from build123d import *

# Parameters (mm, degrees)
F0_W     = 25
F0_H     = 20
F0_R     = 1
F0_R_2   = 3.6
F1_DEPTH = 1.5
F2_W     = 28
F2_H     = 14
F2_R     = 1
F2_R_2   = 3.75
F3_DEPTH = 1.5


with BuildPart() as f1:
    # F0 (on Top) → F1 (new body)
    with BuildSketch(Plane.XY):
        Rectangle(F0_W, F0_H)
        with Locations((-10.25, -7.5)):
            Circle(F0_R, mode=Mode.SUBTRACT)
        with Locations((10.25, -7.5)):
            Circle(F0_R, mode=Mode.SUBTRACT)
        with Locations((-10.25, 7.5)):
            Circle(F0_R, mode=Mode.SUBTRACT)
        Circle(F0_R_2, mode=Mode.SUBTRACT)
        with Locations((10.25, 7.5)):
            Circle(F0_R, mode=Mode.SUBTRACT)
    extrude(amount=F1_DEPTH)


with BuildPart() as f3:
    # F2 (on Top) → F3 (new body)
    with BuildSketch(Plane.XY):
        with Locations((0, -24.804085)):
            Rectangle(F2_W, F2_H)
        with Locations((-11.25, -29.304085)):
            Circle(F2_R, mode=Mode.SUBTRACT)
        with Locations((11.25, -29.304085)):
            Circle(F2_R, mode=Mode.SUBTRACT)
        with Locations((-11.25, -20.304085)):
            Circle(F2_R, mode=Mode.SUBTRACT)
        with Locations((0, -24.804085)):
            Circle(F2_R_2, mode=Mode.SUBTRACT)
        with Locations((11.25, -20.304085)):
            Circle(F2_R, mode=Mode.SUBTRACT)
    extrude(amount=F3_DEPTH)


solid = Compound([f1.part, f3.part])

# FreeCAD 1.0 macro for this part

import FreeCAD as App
import Part
import Sketcher
from FreeCAD import Vector
Q = App.Units.Quantity

doc = App.newDocument("Part")
params = doc.addObject("Spreadsheet::Sheet", "Params")
for row, (alias, value) in enumerate([
    ("sketch1_diameter", "2 mm"),
    ("sketch1_diameter2", "7.2 mm"),
    ("sketch1_width", "25 mm"),
    ("sketch1_height", "20 mm"),
    ("pad1_length", "1.5 mm"),
    ("sketch2_diameter", "2 mm"),
    ("sketch2_diameter2", "7.5 mm"),
    ("sketch2_width", "28 mm"),
    ("sketch2_height", "14 mm"),
    ("pad2_length", "1.5 mm"),
], start=1):
    params.set(f"A{row}", alias)
    params.set(f"B{row}", "=" + value)
    params.setAlias(f"B{row}", alias)

body = doc.addObject("PartDesign::Body", "Body")

# Sketch on XY plane
sketch1 = body.newObject("Sketcher::SketchObject", "Sketch")
sketch1.AttachmentSupport = (doc.getObject("XY_Plane"), [""])
sketch1.MapMode = "FlatFace"
sketch1.addGeometry([
    Part.LineSegment(Vector(-12.5, 10, 0), Vector(-12.5, -10, 0)),  # 0
    Part.LineSegment(Vector(-12.5, -10, 0), Vector(12.5, -10, 0)),  # 1
    Part.LineSegment(Vector(12.5, -10, 0), Vector(12.5, 10, 0)),  # 2
    Part.LineSegment(Vector(12.5, 10, 0), Vector(-12.5, 10, 0)),  # 3
    Part.Circle(Vector(-10.2, -7.5, 0), Vector(0, 0, 1), 1),  # 4
    Part.Circle(Vector(10.2, -7.5, 0), Vector(0, 0, 1), 1),  # 5
    Part.Circle(Vector(-10.2, 7.5, 0), Vector(0, 0, 1), 1),  # 6
    Part.Circle(Vector(0, 0, 0), Vector(0, 0, 1), 3.6),  # 7
    Part.Circle(Vector(10.2, 7.5, 0), Vector(0, 0, 1), 1),  # 8
], False)
sketch1.addConstraint([
    Sketcher.Constraint("Coincident", 0, 2, 1, 1),
    Sketcher.Constraint("Coincident", 1, 2, 2, 1),
    Sketcher.Constraint("Coincident", 2, 2, 3, 1),
    Sketcher.Constraint("Coincident", 3, 2, 0, 1),
    Sketcher.Constraint("Vertical", 0),
    Sketcher.Constraint("Horizontal", 1),
    Sketcher.Constraint("Vertical", 2),
    Sketcher.Constraint("Horizontal", 3),
    Sketcher.Constraint("Coincident", 7, 3, -1, 1),
    Sketcher.Constraint("Equal", 4, 5),
    Sketcher.Constraint("Equal", 5, 6),
    Sketcher.Constraint("Equal", 6, 8),
    Sketcher.Constraint("Symmetric", 5, 3, 6, 3, -1, 1),
    Sketcher.Constraint("Symmetric", 4, 3, 8, 3, -1, 1),
    Sketcher.Constraint("Symmetric", 0, 2, 2, 2, -1, 1),
    Sketcher.Constraint("Symmetric", 4, 3, 5, 3, -2),
    Sketcher.Constraint("Diameter", 4, Q("2 mm")),
    Sketcher.Constraint("Diameter", 7, Q("7.2 mm")),
    Sketcher.Constraint("DistanceX", 1, 1, 1, 2, Q("25 mm")),
    Sketcher.Constraint("DistanceY", 0, 2, 0, 1, Q("20 mm")),
    Sketcher.Constraint("DistanceY", 4, 3, 6, 3, Q("15 mm")),
    Sketcher.Constraint("DistanceX", 4, 3, 5, 3, Q("20.5 mm")),
])
sketch1.setExpression("Constraints[16]", "Params.sketch1_diameter")
sketch1.setExpression("Constraints[17]", "Params.sketch1_diameter2")
sketch1.setExpression("Constraints[18]", "Params.sketch1_width")
sketch1.setExpression("Constraints[19]", "Params.sketch1_height")
pad1 = body.newObject("PartDesign::Pad", "Pad")
pad1.Profile = sketch1
pad1.setExpression("Length", "Params.pad1_length")
body2 = doc.addObject("PartDesign::Body", "Body001")

# Sketch on XY plane
sketch2 = body2.newObject("Sketcher::SketchObject", "Sketch001")
sketch2.AttachmentSupport = (doc.getObject("XY_Plane001"), [""])
sketch2.MapMode = "FlatFace"
sketch2.addGeometry([
    Part.LineSegment(Vector(-14, -17.8, 0), Vector(-14, -31.8, 0)),  # 0
    Part.LineSegment(Vector(-14, -31.8, 0), Vector(14, -31.8, 0)),  # 1
    Part.LineSegment(Vector(14, -31.8, 0), Vector(14, -17.8, 0)),  # 2
    Part.LineSegment(Vector(14, -17.8, 0), Vector(-14, -17.8, 0)),  # 3
    Part.Circle(Vector(-11.2, -29.3, 0), Vector(0, 0, 1), 1),  # 4
    Part.Circle(Vector(11.2, -29.3, 0), Vector(0, 0, 1), 1),  # 5
    Part.Circle(Vector(0, -24.8, 0), Vector(0, 0, 1), 3.8),  # 6
    Part.Circle(Vector(-11.2, -20.3, 0), Vector(0, 0, 1), 1),  # 7
    Part.Circle(Vector(11.2, -20.3, 0), Vector(0, 0, 1), 1),  # 8
], False)
sketch2.addConstraint([
    Sketcher.Constraint("Coincident", 0, 2, 1, 1),
    Sketcher.Constraint("Coincident", 1, 2, 2, 1),
    Sketcher.Constraint("Coincident", 2, 2, 3, 1),
    Sketcher.Constraint("Coincident", 3, 2, 0, 1),
    Sketcher.Constraint("Vertical", 0),
    Sketcher.Constraint("Horizontal", 1),
    Sketcher.Constraint("Vertical", 2),
    Sketcher.Constraint("Horizontal", 3),
    Sketcher.Constraint("Equal", 4, 5),
    Sketcher.Constraint("Equal", 5, 7),
    Sketcher.Constraint("Equal", 7, 8),
    Sketcher.Constraint("Symmetric", 4, 3, 5, 3, -2),
    Sketcher.Constraint("Symmetric", 7, 3, 8, 3, -2),
    Sketcher.Constraint("PointOnObject", 6, 3, -2),
    Sketcher.Constraint("Vertical", 4, 3, 7, 3),
    Sketcher.Constraint("Diameter", 4, Q("2 mm")),
    Sketcher.Constraint("Diameter", 6, Q("7.5 mm")),
    Sketcher.Constraint("DistanceX", 1, 1, 1, 2, Q("28 mm")),
    Sketcher.Constraint("DistanceY", 0, 2, 0, 1, Q("14 mm")),
    Sketcher.Constraint("DistanceX", 0, 2, -1, 1, Q("14 mm")),
    Sketcher.Constraint("DistanceY", 4, 3, 7, 3, Q("9 mm")),
    Sketcher.Constraint("DistanceY", 0, 2, 6, 3, Q("7 mm")),
    Sketcher.Constraint("DistanceX", 4, 3, 5, 3, Q("22.5 mm")),
    Sketcher.Constraint("DistanceY", 4, 3, 6, 3, Q("4.5 mm")),
    Sketcher.Constraint("DistanceY", 4, 3, -1, 1, Q("29.304085 mm")),
])
sketch2.setExpression("Constraints[15]", "Params.sketch2_diameter")
sketch2.setExpression("Constraints[16]", "Params.sketch2_diameter2")
sketch2.setExpression("Constraints[17]", "Params.sketch2_width")
sketch2.setExpression("Constraints[18]", "Params.sketch2_height")
pad2 = body2.newObject("PartDesign::Pad", "Pad001")
pad2.Profile = sketch2
pad2.setExpression("Length", "Params.pad2_length")

doc.recompute()
